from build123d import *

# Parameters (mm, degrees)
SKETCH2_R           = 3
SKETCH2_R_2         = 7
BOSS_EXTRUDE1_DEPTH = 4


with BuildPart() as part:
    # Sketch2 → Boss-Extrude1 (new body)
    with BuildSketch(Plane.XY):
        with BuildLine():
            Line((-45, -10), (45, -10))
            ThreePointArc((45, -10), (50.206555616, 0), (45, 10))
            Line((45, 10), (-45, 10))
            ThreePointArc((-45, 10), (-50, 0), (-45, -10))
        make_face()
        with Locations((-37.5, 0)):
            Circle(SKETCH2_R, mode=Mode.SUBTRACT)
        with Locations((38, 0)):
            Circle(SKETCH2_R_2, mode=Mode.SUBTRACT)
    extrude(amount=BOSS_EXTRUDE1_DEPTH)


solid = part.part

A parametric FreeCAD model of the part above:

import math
import FreeCAD as App
import Part
import Sketcher
from FreeCAD import Vector

doc = App.newDocument("Part")
body = doc.addObject("PartDesign::Body", "Body")

sketch1 = body.newObject("Sketcher::SketchObject", "Sketch")
sketch1.AttachmentSupport = (doc.getObject("XY_Plane"), [""])
sketch1.MapMode = "FlatFace"
sketch1.addGeometry([
    Part.LineSegment(Vector(-45, -10, 0), Vector(45, -10, 0)),
    Part.ArcOfCircle(Part.Circle(Vector(38, 0, 0), Vector(0, 0, 1), 12.2), math.radians(-55), math.radians(55)),
    Part.LineSegment(Vector(45, 10, 0), Vector(-45, 10, 0)),
    Part.ArcOfCircle(Part.Circle(Vector(-37.5, 0, 0), Vector(0, 0, 1), 12.5), math.radians(127), math.radians(233)),
    Part.Circle(Vector(-37.5, 0, 0), Vector(0, 0, 1), 3),
    Part.Circle(Vector(38, 0, 0), Vector(0, 0, 1), 7),
], False)
sketch1.addConstraint([
    Sketcher.Constraint("Coincident", 0, 2, 1, 1),
    Sketcher.Constraint("Coincident", 1, 2, 2, 1),
    Sketcher.Constraint("Coincident", 2, 2, 3, 1),
    Sketcher.Constraint("Coincident", 3, 2, 0, 1),
    Sketcher.Constraint("Horizontal", 0),
    Sketcher.Constraint("Horizontal", 2),
    Sketcher.Constraint("Coincident", 4, 3, 3, 3),
    Sketcher.Constraint("Coincident", 5, 3, 1, 3),
    Sketcher.Constraint("Symmetric", 0, 2, 2, 2, -1, 1),
    Sketcher.Constraint("PointOnObject", 1, 3, -1),
    Sketcher.Constraint("PointOnObject", 3, 3, -1),
    Sketcher.Constraint("Diameter", 4, 6.0),
    Sketcher.Constraint("Diameter", 5, 14.0),
    Sketcher.Constraint("Radius", 3, 12.5),
    Sketcher.Constraint("DistanceX", 0, 1, 0, 2, 90.0),
    Sketcher.Constraint("DistanceX", -1, 1, 1, 3, 38.0),
    Sketcher.Constraint("DistanceY", 0, 2, -1, 1, 10.0),
])
pad1 = body.newObject("PartDesign::Pad", "Pad")
pad1.Profile = sketch1
pad1.Length = 4

doc.recompute()
